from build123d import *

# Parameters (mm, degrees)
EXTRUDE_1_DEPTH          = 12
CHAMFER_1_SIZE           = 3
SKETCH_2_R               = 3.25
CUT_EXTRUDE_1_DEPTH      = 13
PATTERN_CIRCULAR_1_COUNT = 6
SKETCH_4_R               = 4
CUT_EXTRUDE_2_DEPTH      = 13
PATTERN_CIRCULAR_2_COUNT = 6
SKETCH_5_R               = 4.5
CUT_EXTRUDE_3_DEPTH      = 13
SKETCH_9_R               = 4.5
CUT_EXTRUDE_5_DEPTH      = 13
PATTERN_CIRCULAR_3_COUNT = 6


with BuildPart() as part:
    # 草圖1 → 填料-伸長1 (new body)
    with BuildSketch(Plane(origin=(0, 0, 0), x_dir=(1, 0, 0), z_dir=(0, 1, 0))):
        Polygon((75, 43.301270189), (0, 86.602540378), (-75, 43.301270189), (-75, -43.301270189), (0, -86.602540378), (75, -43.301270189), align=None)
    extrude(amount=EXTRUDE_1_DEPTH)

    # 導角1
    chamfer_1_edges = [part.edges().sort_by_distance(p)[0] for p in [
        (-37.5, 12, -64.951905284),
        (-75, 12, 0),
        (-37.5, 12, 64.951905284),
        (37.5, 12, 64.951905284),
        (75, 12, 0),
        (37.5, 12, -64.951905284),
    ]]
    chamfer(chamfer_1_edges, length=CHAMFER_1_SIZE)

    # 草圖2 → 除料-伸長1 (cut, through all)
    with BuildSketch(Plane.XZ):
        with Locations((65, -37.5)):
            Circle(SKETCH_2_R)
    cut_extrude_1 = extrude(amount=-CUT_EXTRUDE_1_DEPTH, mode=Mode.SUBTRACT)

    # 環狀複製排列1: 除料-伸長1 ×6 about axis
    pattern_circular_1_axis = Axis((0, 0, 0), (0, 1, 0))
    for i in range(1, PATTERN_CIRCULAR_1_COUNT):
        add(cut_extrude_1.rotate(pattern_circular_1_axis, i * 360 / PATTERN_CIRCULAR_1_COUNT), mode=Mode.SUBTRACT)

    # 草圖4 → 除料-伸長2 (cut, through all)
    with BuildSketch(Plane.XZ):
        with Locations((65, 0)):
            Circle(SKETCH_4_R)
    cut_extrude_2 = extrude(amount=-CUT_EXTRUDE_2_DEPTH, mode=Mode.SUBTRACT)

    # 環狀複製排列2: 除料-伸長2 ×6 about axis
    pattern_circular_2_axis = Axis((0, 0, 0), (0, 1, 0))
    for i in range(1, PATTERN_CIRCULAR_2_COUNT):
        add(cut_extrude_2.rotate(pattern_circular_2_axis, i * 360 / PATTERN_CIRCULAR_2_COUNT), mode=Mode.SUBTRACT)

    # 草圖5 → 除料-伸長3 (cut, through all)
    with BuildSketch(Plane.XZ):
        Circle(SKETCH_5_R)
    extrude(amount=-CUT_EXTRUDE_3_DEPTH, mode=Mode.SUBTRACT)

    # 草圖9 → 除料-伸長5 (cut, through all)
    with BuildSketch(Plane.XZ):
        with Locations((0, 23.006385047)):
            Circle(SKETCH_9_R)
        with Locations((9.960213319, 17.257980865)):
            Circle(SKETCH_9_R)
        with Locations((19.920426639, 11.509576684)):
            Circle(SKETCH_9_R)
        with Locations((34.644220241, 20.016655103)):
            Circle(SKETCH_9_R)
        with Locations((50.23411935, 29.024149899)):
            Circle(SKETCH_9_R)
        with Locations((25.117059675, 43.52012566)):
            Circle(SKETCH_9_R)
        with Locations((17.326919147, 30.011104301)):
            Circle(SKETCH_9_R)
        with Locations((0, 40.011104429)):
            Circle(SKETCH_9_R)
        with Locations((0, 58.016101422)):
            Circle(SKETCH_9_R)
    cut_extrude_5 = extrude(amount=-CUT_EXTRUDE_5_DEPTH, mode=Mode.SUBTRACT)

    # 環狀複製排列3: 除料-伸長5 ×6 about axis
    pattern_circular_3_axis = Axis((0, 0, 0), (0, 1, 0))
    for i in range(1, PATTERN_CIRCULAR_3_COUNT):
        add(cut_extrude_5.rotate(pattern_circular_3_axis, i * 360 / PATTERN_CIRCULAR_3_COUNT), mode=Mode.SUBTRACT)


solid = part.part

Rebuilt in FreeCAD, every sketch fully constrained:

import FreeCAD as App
import Part
import Sketcher

V = App.Vector
Q = App.Units.Quantity


def edges_at(feature, points):
    """Names of the edges that pass closest to the given points."""
    edges = feature.Shape.Edges
    near = lambda p: min(range(len(edges)), key=lambda i: edges[i].distToShape(Part.Vertex(*p))[0])
    return sorted({f"Edge{near(p) + 1}" for p in points})

doc = App.newDocument("Part")
body = doc.addObject("PartDesign::Body", "Body")

sketch1 = body.newObject("Sketcher::SketchObject", "Sketch")
sketch1.AttachmentSupport = (doc.getObject("XZ_Plane"), [""])
sketch1.MapMode = "FlatFace"
sketch1.addGeometry(Part.LineSegment(V(75, -43, 0), V(0, -87, 0)), False)
sketch1.addGeometry(Part.LineSegment(V(0, -87, 0), V(-75, -43, 0)), False)
sketch1.addGeometry(Part.LineSegment(V(-75, -43, 0), V(-75, 43, 0)), False)
sketch1.addGeometry(Part.LineSegment(V(-75, 43, 0), V(0, 87, 0)), False)
sketch1.addGeometry(Part.LineSegment(V(0, 87, 0), V(75, 43, 0)), False)
sketch1.addGeometry(Part.LineSegment(V(75, 43, 0), V(75, -43, 0)), False)
sketch1.addConstraint(Sketcher.Constraint("Coincident", 0, 2, 1, 1))
sketch1.addConstraint(Sketcher.Constraint("Coincident", 1, 2, 2, 1))
sketch1.addConstraint(Sketcher.Constraint("Coincident", 2, 2, 3, 1))
sketch1.addConstraint(Sketcher.Constraint("Coincident", 3, 2, 4, 1))
sketch1.addConstraint(Sketcher.Constraint("Coincident", 4, 2, 5, 1))
sketch1.addConstraint(Sketcher.Constraint("Coincident", 5, 2, 0, 1))
sketch1.addConstraint(Sketcher.Constraint("Vertical", 2))
sketch1.addConstraint(Sketcher.Constraint("Vertical", 5))
sketch1.addConstraint(Sketcher.Constraint("Symmetric", 0, 2, 3, 2, -1, 1))
sketch1.addConstraint(Sketcher.Constraint("Symmetric", 1, 2, 4, 2, -1, 1))
sketch1.addConstraint(Sketcher.Constraint("PointOnObject", 0, 2, -2))
sketch1.addConstraint(Sketcher.Constraint("Parallel", 0, 3))
sketch1.addConstraint(Sketcher.Constraint("Horizontal", 2, 2, 4, 2))
sketch1.addConstraint(Sketcher.Constraint("Angle", 0, Q("-150 deg")))
sketch1.addConstraint(Sketcher.Constraint("DistanceX", 1, 2, -1, 1, Q("75 mm")))
sketch1.addConstraint(Sketcher.Constraint("DistanceY", 2, 1, 2, 2, Q("86.60254 mm")))
pad1 = body.newObject("PartDesign::Pad", "Pad")
pad1.Profile = sketch1
pad1.Length = 12
pad1.Reversed = True
doc.recompute()

chamfer = body.newObject("PartDesign::Chamfer", "Chamfer")
chamfer.Base = (pad1, edges_at(pad1, [
    (-37.5, 12, -64.952),
    (-75, 12, 0),
    (-37.5, 12, 64.952),
    (37.5, 12, 64.952),
    (75, 12, 0),
    (37.5, 12, -64.952),
]))
chamfer.Size = 3

sketch2 = body.newObject("Sketcher::SketchObject", "Sketch001")
sketch2.AttachmentSupport = (doc.getObject("XZ_Plane"), [""])
sketch2.MapMode = "FlatFace"
sketch2.addGeometry(Part.Circle(V(65, -37.5, 0), V(0, 0, 1), 3.2), False)
sketch2.addConstraint(Sketcher.Constraint("Diameter", 0, Q("6.5 mm")))
sketch2.addConstraint(Sketcher.Constraint("DistanceX", -1, 1, 0, 3, Q("65 mm")))
sketch2.addConstraint(Sketcher.Constraint("DistanceY", 0, 3, -1, 1, Q("37.5 mm")))
pocket1 = body.newObject("PartDesign::Pocket", "Pocket")
pocket1.Profile = sketch2
pocket1.Type = "ThroughAll"
doc.recompute()

polarpattern = body.newObject("PartDesign::PolarPattern", "PolarPattern")
polarpattern.Originals = [pocket1]
polarpattern.Axis = (doc.getObject("Y_Axis"), [""])
polarpattern.Angle = 360
polarpattern.Occurrences = 6
body.Tip = polarpattern

sketch3 = body.newObject("Sketcher::SketchObject", "Sketch002")
sketch3.AttachmentSupport = (doc.getObject("XZ_Plane"), [""])
sketch3.MapMode = "FlatFace"
sketch3.addGeometry(Part.Circle(V(65, 0, 0), V(0, 0, 1), 4), False)
sketch3.addConstraint(Sketcher.Constraint("PointOnObject", 0, 3, -1))
sketch3.addConstraint(Sketcher.Constraint("Diameter", 0, Q("8 mm")))
sketch3.addConstraint(Sketcher.Constraint("DistanceX", -1, 1, 0, 3, Q("65 mm")))
pocket2 = body.newObject("PartDesign::Pocket", "Pocket001")
pocket2.Profile = sketch3
pocket2.Type = "ThroughAll"
doc.recompute()

polarpattern2 = body.newObject("PartDesign::PolarPattern", "PolarPattern001")
polarpattern2.Originals = [pocket2]
polarpattern2.Axis = (doc.getObject("Y_Axis"), [""])
polarpattern2.Angle = 360
polarpattern2.Occurrences = 6
body.Tip = polarpattern2

sketch4 = body.newObject("Sketcher::SketchObject", "Sketch003")
sketch4.AttachmentSupport = (doc.getObject("XZ_Plane"), [""])
sketch4.MapMode = "FlatFace"
sketch4.addGeometry(Part.Circle(V(0, 0, 0), V(0, 0, 1), 4.5), False)
sketch4.addConstraint(Sketcher.Constraint("Coincident", 0, 3, -1, 1))
sketch4.addConstraint(Sketcher.Constraint("Diameter", 0, Q("9 mm")))
pocket3 = body.newObject("PartDesign::Pocket", "Pocket002")
pocket3.Profile = sketch4
pocket3.Type = "ThroughAll"

sketch5 = body.newObject("Sketcher::SketchObject", "Sketch004")
sketch5.AttachmentSupport = (doc.getObject("XZ_Plane"), [""])
sketch5.MapMode = "FlatFace"
sketch5.addGeometry(Part.Circle(V(0, 23, 0), V(0, 0, 1), 4.5), False)
sketch5.addGeometry(Part.Circle(V(10, 17.3, 0), V(0, 0, 1), 4.5), False)
sketch5.addGeometry(Part.Circle(V(19.9, 11.5, 0), V(0, 0, 1), 4.5), False)
sketch5.addGeometry(Part.Circle(V(34.6, 20, 0), V(0, 0, 1), 4.5), False)
sketch5.addGeometry(Part.Circle(V(50.2, 29, 0), V(0, 0, 1), 4.5), False)
sketch5.addGeometry(Part.Circle(V(25.1, 43.5, 0), V(0, 0, 1), 4.5), False)
sketch5.addGeometry(Part.Circle(V(17.3, 30, 0), V(0, 0, 1), 4.5), False)
sketch5.addGeometry(Part.Circle(V(0, 40, 0), V(0, 0, 1), 4.5), False)
sketch5.addGeometry(Part.Circle(V(0, 58, 0), V(0, 0, 1), 4.5), False)
sketch5.addConstraint(Sketcher.Constraint("Equal", 0, 1))
sketch5.addConstraint(Sketcher.Constraint("Equal", 1, 2))
sketch5.addConstraint(Sketcher.Constraint("Equal", 2, 3))
sketch5.addConstraint(Sketcher.Constraint("Equal", 3, 4))
sketch5.addConstraint(Sketcher.Constraint("Equal", 4, 5))
sketch5.addConstraint(Sketcher.Constraint("Equal", 5, 6))
sketch5.addConstraint(Sketcher.Constraint("Equal", 6, 7))
sketch5.addConstraint(Sketcher.Constraint("Equal", 7, 8))
sketch5.addConstraint(Sketcher.Constraint("PointOnObject", 0, 3, -2))
sketch5.addConstraint(Sketcher.Constraint("PointOnObject", 7, 3, -2))
sketch5.addConstraint(Sketcher.Constraint("PointOnObject", 8, 3, -2))
sketch5.addConstraint(Sketcher.Constraint("Diameter", 0, Q("9 mm")))
sketch5.addConstraint(Sketcher.Constraint("DistanceY", 6, 3, 7, 3, Q("10 mm")))
sketch5.addConstraint(Sketcher.Constraint("DistanceY", -1, 1, 8, 3, Q("58.016101 mm")))
sketch5.addConstraint(Sketcher.Constraint("DistanceX", 3, 3, 4, 3, Q("15.589899 mm")))
sketch5.addConstraint(Sketcher.Constraint("DistanceX", 6, 3, 3, 3, Q("17.317301 mm")))
sketch5.addConstraint(Sketcher.Constraint("DistanceY", -1, 1, 1, 3, Q("17.257981 mm")))
sketch5.addConstraint(Sketcher.Constraint("DistanceX", -1, 1, 3, 3, Q("34.64422 mm")))
sketch5.addConstraint(Sketcher.Constraint("DistanceY", -1, 1, 4, 3, Q("29.02415 mm")))
sketch5.addConstraint(Sketcher.Constraint("DistanceX", -1, 1, 5, 3, Q("25.11706 mm")))
sketch5.addConstraint(Sketcher.Constraint("DistanceY", 2, 3, 0, 3, Q("11.496808 mm")))
sketch5.addConstraint(Sketcher.Constraint("DistanceY", 2, 3, 3, 3, Q("8.507078 mm")))
sketch5.addConstraint(Sketcher.Constraint("DistanceY", 3, 3, 5, 3, Q("23.503471 mm")))
sketch5.addConstraint(Sketcher.Constraint("DistanceY", 6, 3, 5, 3, Q("13.509021 mm")))
sketch5.addConstraint(Sketcher.Constraint("DistanceY", -1, 1, 0, 3, Q("23.006385 mm")))
sketch5.addConstraint(Sketcher.Constraint("DistanceX", -1, 1, 1, 3, Q("9.960213 mm")))
sketch5.addConstraint(Sketcher.Constraint("DistanceX", -1, 1, 2, 3, Q("19.920427 mm")))
pocket4 = body.newObject("PartDesign::Pocket", "Pocket003")
pocket4.Profile = sketch5
pocket4.Type = "ThroughAll"
doc.recompute()

polarpattern3 = body.newObject("PartDesign::PolarPattern", "PolarPattern002")
polarpattern3.Originals = [pocket4]
polarpattern3.Axis = (doc.getObject("Y_Axis"), [""])
polarpattern3.Angle = 360
polarpattern3.Occurrences = 6
body.Tip = polarpattern3

doc.recompute()
